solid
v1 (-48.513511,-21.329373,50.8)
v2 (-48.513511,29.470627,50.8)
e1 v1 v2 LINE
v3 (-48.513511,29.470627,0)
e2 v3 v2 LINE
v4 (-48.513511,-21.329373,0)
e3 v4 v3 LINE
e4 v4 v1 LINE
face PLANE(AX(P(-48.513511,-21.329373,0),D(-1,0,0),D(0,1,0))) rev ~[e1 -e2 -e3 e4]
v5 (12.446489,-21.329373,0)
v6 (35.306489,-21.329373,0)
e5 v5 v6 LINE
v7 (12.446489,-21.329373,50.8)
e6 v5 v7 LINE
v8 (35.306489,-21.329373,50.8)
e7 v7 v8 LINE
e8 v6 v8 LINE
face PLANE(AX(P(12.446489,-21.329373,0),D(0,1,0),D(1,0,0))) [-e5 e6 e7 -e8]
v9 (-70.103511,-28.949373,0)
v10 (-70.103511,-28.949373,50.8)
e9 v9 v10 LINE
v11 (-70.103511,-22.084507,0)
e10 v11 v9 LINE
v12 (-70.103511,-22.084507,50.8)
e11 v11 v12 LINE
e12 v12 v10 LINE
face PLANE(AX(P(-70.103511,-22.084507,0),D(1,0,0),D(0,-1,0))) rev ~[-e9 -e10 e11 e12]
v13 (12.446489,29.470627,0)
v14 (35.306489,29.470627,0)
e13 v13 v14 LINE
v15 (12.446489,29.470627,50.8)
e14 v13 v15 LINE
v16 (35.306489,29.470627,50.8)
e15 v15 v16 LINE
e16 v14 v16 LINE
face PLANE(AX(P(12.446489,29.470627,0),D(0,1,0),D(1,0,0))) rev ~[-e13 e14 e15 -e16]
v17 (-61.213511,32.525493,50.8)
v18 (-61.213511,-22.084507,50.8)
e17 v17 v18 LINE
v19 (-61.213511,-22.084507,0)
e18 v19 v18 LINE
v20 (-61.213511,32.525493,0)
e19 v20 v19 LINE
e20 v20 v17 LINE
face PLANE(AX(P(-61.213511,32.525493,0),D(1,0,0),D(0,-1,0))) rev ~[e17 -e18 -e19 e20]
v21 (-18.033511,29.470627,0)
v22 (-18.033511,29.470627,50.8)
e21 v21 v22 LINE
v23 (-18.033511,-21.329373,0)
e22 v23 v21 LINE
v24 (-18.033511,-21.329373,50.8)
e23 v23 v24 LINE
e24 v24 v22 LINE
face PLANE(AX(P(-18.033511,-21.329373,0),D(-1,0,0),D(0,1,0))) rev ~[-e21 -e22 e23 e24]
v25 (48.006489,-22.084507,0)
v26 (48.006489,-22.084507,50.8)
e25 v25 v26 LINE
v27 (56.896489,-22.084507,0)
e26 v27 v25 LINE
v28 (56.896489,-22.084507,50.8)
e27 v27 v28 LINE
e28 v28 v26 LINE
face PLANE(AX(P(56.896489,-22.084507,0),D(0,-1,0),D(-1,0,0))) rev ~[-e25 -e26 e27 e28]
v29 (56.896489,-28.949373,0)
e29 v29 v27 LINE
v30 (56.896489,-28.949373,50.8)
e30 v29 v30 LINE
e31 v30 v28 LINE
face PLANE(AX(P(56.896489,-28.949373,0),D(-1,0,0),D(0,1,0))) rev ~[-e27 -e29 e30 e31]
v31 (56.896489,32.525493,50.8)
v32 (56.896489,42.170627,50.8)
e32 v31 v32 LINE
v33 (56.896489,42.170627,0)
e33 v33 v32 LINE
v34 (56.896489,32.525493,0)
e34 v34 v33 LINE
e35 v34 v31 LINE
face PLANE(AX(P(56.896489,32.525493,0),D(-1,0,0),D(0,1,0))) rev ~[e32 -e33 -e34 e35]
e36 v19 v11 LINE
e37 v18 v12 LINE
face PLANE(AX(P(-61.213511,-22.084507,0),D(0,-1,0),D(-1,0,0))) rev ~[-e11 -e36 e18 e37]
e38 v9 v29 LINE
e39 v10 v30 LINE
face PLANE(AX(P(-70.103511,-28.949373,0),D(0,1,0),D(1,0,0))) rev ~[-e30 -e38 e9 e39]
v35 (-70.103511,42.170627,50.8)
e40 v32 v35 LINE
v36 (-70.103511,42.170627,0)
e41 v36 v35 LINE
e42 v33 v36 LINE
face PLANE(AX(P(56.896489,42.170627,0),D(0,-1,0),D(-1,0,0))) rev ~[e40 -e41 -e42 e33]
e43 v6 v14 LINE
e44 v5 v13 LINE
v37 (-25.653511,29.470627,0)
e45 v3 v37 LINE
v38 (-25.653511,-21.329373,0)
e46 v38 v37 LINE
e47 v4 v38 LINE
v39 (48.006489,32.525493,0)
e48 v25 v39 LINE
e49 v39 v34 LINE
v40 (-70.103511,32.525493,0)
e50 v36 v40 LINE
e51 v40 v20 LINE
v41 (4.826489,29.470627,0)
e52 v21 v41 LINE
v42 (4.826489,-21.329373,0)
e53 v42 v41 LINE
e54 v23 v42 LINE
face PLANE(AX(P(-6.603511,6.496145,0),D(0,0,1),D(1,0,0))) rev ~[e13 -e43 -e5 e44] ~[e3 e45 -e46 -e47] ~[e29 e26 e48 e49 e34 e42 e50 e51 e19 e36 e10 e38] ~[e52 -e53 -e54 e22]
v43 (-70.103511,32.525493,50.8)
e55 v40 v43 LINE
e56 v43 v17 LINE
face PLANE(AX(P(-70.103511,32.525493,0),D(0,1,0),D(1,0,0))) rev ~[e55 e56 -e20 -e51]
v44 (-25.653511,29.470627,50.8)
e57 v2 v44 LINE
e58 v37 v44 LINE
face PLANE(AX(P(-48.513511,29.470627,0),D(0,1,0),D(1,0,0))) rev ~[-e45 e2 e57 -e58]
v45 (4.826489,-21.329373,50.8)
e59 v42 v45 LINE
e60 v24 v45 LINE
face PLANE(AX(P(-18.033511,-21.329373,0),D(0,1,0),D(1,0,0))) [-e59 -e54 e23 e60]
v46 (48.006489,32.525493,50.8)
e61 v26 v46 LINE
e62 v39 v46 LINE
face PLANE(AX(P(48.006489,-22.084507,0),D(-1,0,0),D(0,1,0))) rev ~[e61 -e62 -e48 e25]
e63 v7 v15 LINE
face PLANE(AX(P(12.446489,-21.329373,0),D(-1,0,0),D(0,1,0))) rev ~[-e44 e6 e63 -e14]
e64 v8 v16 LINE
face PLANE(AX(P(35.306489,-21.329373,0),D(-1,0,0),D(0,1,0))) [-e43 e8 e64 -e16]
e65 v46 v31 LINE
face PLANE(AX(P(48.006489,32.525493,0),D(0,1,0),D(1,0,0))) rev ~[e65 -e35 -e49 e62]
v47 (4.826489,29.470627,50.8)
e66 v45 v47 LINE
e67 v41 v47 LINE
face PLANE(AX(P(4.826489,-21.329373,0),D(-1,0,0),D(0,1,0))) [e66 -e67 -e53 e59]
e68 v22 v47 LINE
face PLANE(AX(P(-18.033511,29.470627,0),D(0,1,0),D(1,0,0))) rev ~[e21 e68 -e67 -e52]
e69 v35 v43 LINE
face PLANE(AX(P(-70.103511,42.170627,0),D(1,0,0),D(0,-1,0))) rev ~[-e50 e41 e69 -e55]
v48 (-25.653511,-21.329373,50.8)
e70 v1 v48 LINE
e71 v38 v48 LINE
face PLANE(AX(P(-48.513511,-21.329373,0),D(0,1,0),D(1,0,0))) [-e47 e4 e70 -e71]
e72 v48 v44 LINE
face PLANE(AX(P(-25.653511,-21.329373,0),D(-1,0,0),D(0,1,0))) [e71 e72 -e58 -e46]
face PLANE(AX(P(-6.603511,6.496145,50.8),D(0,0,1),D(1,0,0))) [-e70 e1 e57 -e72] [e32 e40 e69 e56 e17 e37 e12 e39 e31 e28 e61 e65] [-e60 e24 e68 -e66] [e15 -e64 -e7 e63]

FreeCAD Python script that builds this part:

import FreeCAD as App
import Part
import Sketcher

V = App.Vector
Q = App.Units.Quantity

doc = App.newDocument("Part")
params = doc.addObject("Spreadsheet::Sheet", "Params")
for row, (alias, value) in enumerate([
    ("sketch1_width", "5 in"),
    ("sketch1_height", "2 in"),
    ("sketch1_width2", "0.9 in"),
    ("sketch1_width3", "0.35 in"),
    ("sketch1_height2", "2.15 in"),
    ("pad1_length", "2 in"),
], start=1):
    params.set(f"A{row}", alias)
    params.set(f"B{row}", "=" + value)
    params.setAlias(f"B{row}", alias)

body = doc.addObject("PartDesign::Body", "Body")

# Sketch on XY plane
sketch1 = doc.addObject("Sketcher::SketchObject", "Sketch")
body.addObject(sketch1)
sketch1.AttachmentSupport = (doc.XY_Plane, [""])
sketch1.MapMode = "FlatFace"
sketch1.addGeometry([
    Part.LineSegment(V(56.896489, 42.170627, 0), V(-70.103511, 42.170627, 0)),  # 0
    Part.LineSegment(V(-70.103511, 42.170627, 0), V(-70.103511, 32.525493, 0)),  # 1
    Part.LineSegment(V(-70.103511, 32.525493, 0), V(-61.213511, 32.525493, 0)),  # 2
    Part.LineSegment(V(-61.213511, 32.525493, 0), V(-61.213511, -22.084507, 0)),  # 3
    Part.LineSegment(V(-61.213511, -22.084507, 0), V(-70.103511, -22.084507, 0)),  # 4
    Part.LineSegment(V(-70.103511, -22.084507, 0), V(-70.103511, -28.949373, 0)),  # 5
    Part.LineSegment(V(-70.103511, -28.949373, 0), V(56.896489, -28.949373, 0)),  # 6
    Part.LineSegment(V(56.896489, -28.949373, 0), V(56.896489, -22.084507, 0)),  # 7
    Part.LineSegment(V(56.896489, -22.084507, 0), V(48.006489, -22.084507, 0)),  # 8
    Part.LineSegment(V(48.006489, -22.084507, 0), V(48.006489, 32.525493, 0)),  # 9
    Part.LineSegment(V(48.006489, 32.525493, 0), V(56.896489, 32.525493, 0)),  # 10
    Part.LineSegment(V(56.896489, 32.525493, 0), V(56.896489, 42.170627, 0)),  # 11
    Part.LineSegment(V(-25.653511, -21.329373, 0), V(-48.513511, -21.329373, 0)),  # 12
    Part.LineSegment(V(-48.513511, -21.329373, 0), V(-48.513511, 29.470627, 0)),  # 13
    Part.LineSegment(V(-48.513511, 29.470627, 0), V(-25.653511, 29.470627, 0)),  # 14
    Part.LineSegment(V(-25.653511, 29.470627, 0), V(-25.653511, -21.329373, 0)),  # 15
    Part.LineSegment(V(4.826489, -21.329373, 0), V(-18.033511, -21.329373, 0)),  # 16
    Part.LineSegment(V(-18.033511, -21.329373, 0), V(-18.033511, 29.470627, 0)),  # 17
    Part.LineSegment(V(-18.033511, 29.470627, 0), V(4.826489, 29.470627, 0)),  # 18
    Part.LineSegment(V(4.826489, 29.470627, 0), V(4.826489, -21.329373, 0)),  # 19
    Part.LineSegment(V(35.306489, -21.329373, 0), V(12.446489, -21.329373, 0)),  # 20
    Part.LineSegment(V(12.446489, -21.329373, 0), V(12.446489, 29.470627, 0)),  # 21
    Part.LineSegment(V(12.446489, 29.470627, 0), V(35.306489, 29.470627, 0)),  # 22
    Part.LineSegment(V(35.306489, 29.470627, 0), V(35.306489, -21.329373, 0)),  # 23
], False)
sketch1.addConstraint([
    Sketcher.Constraint("Coincident", 0, 2, 1, 1),
    Sketcher.Constraint("Coincident", 1, 2, 2, 1),
    Sketcher.Constraint("Coincident", 2, 2, 3, 1),
    Sketcher.Constraint("Coincident", 3, 2, 4, 1),
    Sketcher.Constraint("Coincident", 4, 2, 5, 1),
    Sketcher.Constraint("Coincident", 5, 2, 6, 1),
    Sketcher.Constraint("Coincident", 6, 2, 7, 1),
    Sketcher.Constraint("Coincident", 7, 2, 8, 1),
    Sketcher.Constraint("Coincident", 8, 2, 9, 1),
    Sketcher.Constraint("Coincident", 9, 2, 10, 1),
    Sketcher.Constraint("Coincident", 10, 2, 11, 1),
    Sketcher.Constraint("Coincident", 11, 2, 0, 1),
    Sketcher.Constraint("Coincident", 12, 2, 13, 1),
    Sketcher.Constraint("Coincident", 13, 2, 14, 1),
    Sketcher.Constraint("Coincident", 14, 2, 15, 1),
    Sketcher.Constraint("Coincident", 15, 2, 12, 1),
    Sketcher.Constraint("Coincident", 16, 2, 17, 1),
    Sketcher.Constraint("Coincident", 17, 2, 18, 1),
    Sketcher.Constraint("Coincident", 18, 2, 19, 1),
    Sketcher.Constraint("Coincident", 19, 2, 16, 1),
    Sketcher.Constraint("Coincident", 20, 2, 21, 1),
    Sketcher.Constraint("Coincident", 21, 2, 22, 1),
    Sketcher.Constraint("Coincident", 22, 2, 23, 1),
    Sketcher.Constraint("Coincident", 23, 2, 20, 1),
    Sketcher.Constraint("Horizontal", 0),
    Sketcher.Constraint("Vertical", 1),
    Sketcher.Constraint("Horizontal", 2),
    Sketcher.Constraint("Vertical", 3),
    Sketcher.Constraint("Horizontal", 4),
    Sketcher.Constraint("Vertical", 5),
    Sketcher.Constraint("Horizontal", 6),
    Sketcher.Constraint("Vertical", 7),
    Sketcher.Constraint("Horizontal", 8),
    Sketcher.Constraint("Vertical", 9),
    Sketcher.Constraint("Horizontal", 10),
    Sketcher.Constraint("Vertical", 11),
    Sketcher.Constraint("Horizontal", 12),
    Sketcher.Constraint("Vertical", 13),
    Sketcher.Constraint("Horizontal", 14),
    Sketcher.Constraint("Vertical", 15),
    Sketcher.Constraint("Horizontal", 16),
    Sketcher.Constraint("Vertical", 17),
    Sketcher.Constraint("Horizontal", 18),
    Sketcher.Constraint("Vertical", 19),
    Sketcher.Constraint("Horizontal", 20),
    Sketcher.Constraint("Vertical", 21),
    Sketcher.Constraint("Horizontal", 22),
    Sketcher.Constraint("Vertical", 23),
    Sketcher.Constraint("Horizontal", 4, 2, 7, 2),
    Sketcher.Constraint("Horizontal", 2, 2, 9, 2),
    Sketcher.Constraint("Horizontal", 15, 2, 16, 2),
    Sketcher.Constraint("Horizontal", 14, 2, 17, 2),
    Sketcher.Constraint("Horizontal", 19, 2, 20, 2),
    Sketcher.Constraint("Horizontal", 18, 2, 21, 2),
    Sketcher.Constraint("Vertical", 1, 2, 4, 2),
    Sketcher.Constraint("Vertical", 7, 2, 10, 2),
    Sketcher.Constraint("Equal", 4, 8),
    Sketcher.Constraint("Equal", 14, 16),
    Sketcher.Constraint("Equal", 18, 20),
    Sketcher.Constraint("DistanceX", 0, 2, 0, 1, Q("5 in")),
    Sketcher.Constraint("DistanceY", 13, 1, 13, 2, Q("2 in")),
    Sketcher.Constraint("DistanceX", 12, 2, 12, 1, Q("0.9 in")),
    Sketcher.Constraint("DistanceX", 2, 1, 2, 2, Q("0.35 in")),
    Sketcher.Constraint("DistanceY", 3, 2, 3, 1, Q("2.15 in")),
    Sketcher.Constraint("DistanceY", 5, 2, 0, 2, Q("2.8 in")),
    Sketcher.Constraint("DistanceX", 3, 2, 12, 2, Q("0.5 in")),
    Sketcher.Constraint("DistanceY", 5, 2, 12, 2, Q("0.3 in")),
    Sketcher.Constraint("DistanceX", 15, 2, 16, 2, Q("0.3 in")),
    Sketcher.Constraint("DistanceX", 19, 2, 20, 2, Q("0.3 in")),
    Sketcher.Constraint("DistanceY", 1, 2, 1, 1, 9.645134),
    Sketcher.Constraint("DistanceX", 0, 2, -1, 1, 70.103511),
    Sketcher.Constraint("DistanceY", -1, 1, 0, 2, 42.170627),
])
sketch1.setExpression("Constraints[59]", "Params.sketch1_width")
sketch1.setExpression("Constraints[60]", "Params.sketch1_height")
sketch1.setExpression("Constraints[61]", "Params.sketch1_width2")
sketch1.setExpression("Constraints[62]", "Params.sketch1_width3")
sketch1.setExpression("Constraints[63]", "Params.sketch1_height2")
pad1 = doc.addObject("PartDesign::Pad", "Pad")
body.addObject(pad1)
pad1.Profile = sketch1
pad1.setExpression("Length", "Params.pad1_length")

doc.recompute()
